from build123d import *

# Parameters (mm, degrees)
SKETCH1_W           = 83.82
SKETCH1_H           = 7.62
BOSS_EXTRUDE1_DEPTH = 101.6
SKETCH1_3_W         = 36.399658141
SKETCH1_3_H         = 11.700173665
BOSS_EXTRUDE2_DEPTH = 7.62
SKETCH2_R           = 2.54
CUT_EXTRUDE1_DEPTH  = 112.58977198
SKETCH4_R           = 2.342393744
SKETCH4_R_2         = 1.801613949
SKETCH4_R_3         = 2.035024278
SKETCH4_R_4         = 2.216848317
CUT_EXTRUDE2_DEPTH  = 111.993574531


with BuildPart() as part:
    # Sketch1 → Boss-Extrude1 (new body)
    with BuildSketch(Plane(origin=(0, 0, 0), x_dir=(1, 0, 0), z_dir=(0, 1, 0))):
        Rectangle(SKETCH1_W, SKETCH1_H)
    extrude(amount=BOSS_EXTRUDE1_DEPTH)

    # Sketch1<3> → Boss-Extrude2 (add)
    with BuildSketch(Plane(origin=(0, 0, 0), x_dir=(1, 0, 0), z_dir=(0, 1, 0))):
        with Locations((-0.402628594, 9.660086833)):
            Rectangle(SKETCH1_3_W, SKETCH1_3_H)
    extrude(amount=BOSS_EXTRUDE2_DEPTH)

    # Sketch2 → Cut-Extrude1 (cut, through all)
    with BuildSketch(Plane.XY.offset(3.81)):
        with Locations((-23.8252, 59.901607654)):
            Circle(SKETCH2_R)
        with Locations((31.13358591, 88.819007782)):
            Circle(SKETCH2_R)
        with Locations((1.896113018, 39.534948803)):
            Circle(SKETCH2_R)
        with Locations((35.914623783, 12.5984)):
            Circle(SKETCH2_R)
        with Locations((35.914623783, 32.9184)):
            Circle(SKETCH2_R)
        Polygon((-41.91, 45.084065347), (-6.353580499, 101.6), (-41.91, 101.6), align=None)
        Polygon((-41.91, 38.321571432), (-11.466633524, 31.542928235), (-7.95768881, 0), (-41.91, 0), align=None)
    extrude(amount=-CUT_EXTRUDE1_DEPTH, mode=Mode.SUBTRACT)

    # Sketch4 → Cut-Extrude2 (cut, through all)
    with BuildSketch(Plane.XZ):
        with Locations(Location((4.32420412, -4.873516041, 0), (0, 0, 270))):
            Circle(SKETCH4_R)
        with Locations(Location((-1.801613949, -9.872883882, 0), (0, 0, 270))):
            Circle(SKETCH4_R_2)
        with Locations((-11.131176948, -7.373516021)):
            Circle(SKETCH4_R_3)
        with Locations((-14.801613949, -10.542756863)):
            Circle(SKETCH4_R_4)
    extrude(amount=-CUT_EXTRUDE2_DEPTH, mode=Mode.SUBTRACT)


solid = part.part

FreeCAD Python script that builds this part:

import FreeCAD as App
import Part
import Sketcher

V = App.Vector
Q = App.Units.Quantity


def add_polygon(sketch, points):
    """Adds a closed chain of lines whose ends are joined by coincident constraints."""
    first, n = sketch.GeometryCount, len(points)
    for a, b in zip(points, points[1:] + points[:1]):
        sketch.addGeometry(Part.LineSegment(App.Vector(*a, 0), App.Vector(*b, 0)), False)
    for i in range(n):
        sketch.addConstraint(Sketcher.Constraint("Coincident", first + i, 2, first + (i + 1) % n, 1))

doc = App.newDocument("Part")
body = doc.addObject("PartDesign::Body", "Body")

# Sketch on XZ plane
sketch1 = body.newObject("Sketcher::SketchObject", "Sketch")
sketch1.AttachmentSupport = (doc.getObject("XZ_Plane"), [""])
sketch1.MapMode = "FlatFace"
add_polygon(sketch1, [(-41.91, -3.81), (-41.91, 3.81), (41.91, 3.81), (41.91, -3.81)])  # lines 0-3
sketch1.addConstraint([
    Sketcher.Constraint("Vertical", 0),
    Sketcher.Constraint("Horizontal", 1),
    Sketcher.Constraint("Vertical", 2),
    Sketcher.Constraint("Horizontal", 3),
    Sketcher.Constraint("Symmetric", 0, 2, 2, 2, -1, 1),
    Sketcher.Constraint("DistanceX", 1, 1, 1, 2, Q("3.3 in")),
    Sketcher.Constraint("DistanceY", 0, 1, 0, 2, Q("0.3 in")),
])
pad1 = body.newObject("PartDesign::Pad", "Pad")
pad1.Profile = sketch1
pad1.Length = Q("4 in")
pad1.Reversed = True

# Sketch on XZ plane
sketch2 = body.newObject("Sketcher::SketchObject", "Sketch001")
sketch2.AttachmentSupport = (doc.getObject("XZ_Plane"), [""])
sketch2.MapMode = "FlatFace"
add_polygon(sketch2, [(-18.602458, -15.510174), (-18.602458, -3.81), (17.7972, -3.81), (17.7972, -15.510174)])  # lines 0-3
sketch2.addConstraint([
    Sketcher.Constraint("Vertical", 0),
    Sketcher.Constraint("Horizontal", 1),
    Sketcher.Constraint("Vertical", 2),
    Sketcher.Constraint("Horizontal", 3),
    Sketcher.Constraint("DistanceY", 0, 2, -1, 1, Q("0.15 in")),
    Sketcher.Constraint("DistanceX", 1, 1, 1, 2, 36.399658),
    Sketcher.Constraint("DistanceX", -1, 1, 1, 2, 17.7972),
    Sketcher.Constraint("DistanceY", 0, 1, 0, 2, 11.700174),
])
pad2 = body.newObject("PartDesign::Pad", "Pad001")
pad2.Profile = sketch2
pad2.Length = Q("0.3 in")
pad2.Reversed = True

# Sketch on XY plane
sketch3 = body.newObject("Sketcher::SketchObject", "Sketch002")
sketch3.AttachmentSupport = (doc.getObject("XY_Plane"), [""])
sketch3.MapMode = "FlatFace"
sketch3.AttachmentOffset = App.Placement(V(0, 0, 0.15 * 25.4), App.Rotation())
sketch3.addGeometry(Part.Circle(V(-23.8252, 59.901608, 0), V(0, 0, 1), 2.54), False)  # 0
sketch3.addGeometry(Part.Circle(V(31.133586, 88.819008, 0), V(0, 0, 1), 2.54), False)  # 1
sketch3.addGeometry(Part.Circle(V(1.896113, 39.534949, 0), V(0, 0, 1), 2.54), False)  # 2
sketch3.addGeometry(Part.Circle(V(35.914624, 12.5984, 0), V(0, 0, 1), 2.54), False)  # 3
sketch3.addGeometry(Part.Circle(V(35.914624, 32.9184, 0), V(0, 0, 1), 2.54), False)  # 4
add_polygon(sketch3, [(-41.91, 45.084065), (-6.35358, 101.6), (-41.91, 101.6)])  # lines 5-7
add_polygon(sketch3, [(-11.466634, 31.542928), (-41.91, 38.321571), (-41.91, 0), (-7.957689, 0)])  # lines 8-11
sketch3.addConstraint([
    Sketcher.Constraint("Horizontal", 6),
    Sketcher.Constraint("Vertical", 7),
    Sketcher.Constraint("Vertical", 9),
    Sketcher.Constraint("Horizontal", 10),
    Sketcher.Constraint("Equal", 0, 1),
    Sketcher.Constraint("Equal", 1, 2),
    Sketcher.Constraint("Equal", 2, 3),
    Sketcher.Constraint("Equal", 3, 4),
    Sketcher.Constraint("PointOnObject", 9, 2, -1),
    Sketcher.Constraint("Vertical", 3, 3, 4, 3),
    Sketcher.Constraint("Vertical", 7, 2, 8, 2),
    Sketcher.Constraint("Diameter", 0, Q("0.2 in")),
    Sketcher.Constraint("DistanceY", -1, 1, 5, 2, Q("4 in")),
    Sketcher.Constraint("DistanceY", 3, 3, 4, 3, Q("0.8 in")),
    Sketcher.Constraint("DistanceX", 6, 2, -1, 1, Q("1.65 in")),
    Sketcher.Constraint("DistanceX", 0, 3, -1, 1, Q("0.938 in")),
    Sketcher.Constraint("DistanceY", -1, 1, 3, 3, Q("0.496 in")),
    Sketcher.Constraint("Distance", 11, 31.737502),
    Sketcher.Constraint("DistanceX", 6, 2, 6, 1, 35.55642),
    Sketcher.Constraint("DistanceX", 10, 1, 10, 2, 33.952311),
    Sketcher.Constraint("DistanceY", 9, 2, 9, 1, 38.321571),
    Sketcher.Constraint("DistanceY", 0, 3, 1, 3, 28.9174),
    Sketcher.Constraint("DistanceX", 10, 2, 2, 3, 9.853802),
    Sketcher.Constraint("DistanceY", 7, 2, 7, 1, 56.515935),
    Sketcher.Constraint("DistanceY", -1, 1, 2, 3, 39.534949),
    Sketcher.Constraint("DistanceY", -1, 1, 11, 2, 31.542928),
    Sketcher.Constraint("DistanceY", 2, 3, 0, 3, 20.366659),
    Sketcher.Constraint("DistanceX", 2, 3, 3, 3, 34.018511),
    Sketcher.Constraint("DistanceX", -1, 1, 1, 3, 31.133586),
])
pocket1 = body.newObject("PartDesign::Pocket", "Pocket")
pocket1.Profile = sketch3
pocket1.Type = "ThroughAll"

# Sketch on XZ plane
sketch4 = body.newObject("Sketcher::SketchObject", "Sketch003")
sketch4.AttachmentSupport = (doc.getObject("XZ_Plane"), [""])
sketch4.MapMode = "FlatFace"
sketch4.addGeometry([
    Part.Circle(V(4.324204, -4.873516, 0), V(0, 0, 1), 2.342394),
    Part.Circle(V(-1.801614, -9.872884, 0), V(0, 0, 1), 1.801614),
    Part.Circle(V(-11.131177, -7.373516, 0), V(0, 0, 1), 2.035024),
    Part.Circle(V(-14.801614, -10.542757, 0), V(0, 0, 1), 2.216848),
], False)
sketch4.addConstraint([
    Sketcher.Constraint("Diameter", 2, 4.070049),
    Sketcher.Constraint("Diameter", 0, 4.684787),
    Sketcher.Constraint("Diameter", 1, 3.603228),
    Sketcher.Constraint("Diameter", 3, 4.433697),
    Sketcher.Constraint("DistanceY", 2, 3, 0, 3, 2.5),
    Sketcher.Constraint("DistanceX", 3, 3, 1, 3, 13.0),
    Sketcher.Constraint("DistanceX", 1, 3, 0, 3, 6.125818),
    Sketcher.Constraint("DistanceX", 2, 3, 0, 3, 15.455381),
    Sketcher.Constraint("DistanceY", 3, 3, 2, 3, 3.169241),
    Sketcher.Constraint("DistanceX", -1, 1, 0, 3, 4.324204),
    Sketcher.Constraint("DistanceY", 0, 3, -1, 1, 4.873516),
    Sketcher.Constraint("DistanceY", 1, 3, -1, 1, 9.872884),
])
pocket2 = body.newObject("PartDesign::Pocket", "Pocket001")
pocket2.Profile = sketch4
pocket2.Type = "ThroughAll"

doc.recompute()
